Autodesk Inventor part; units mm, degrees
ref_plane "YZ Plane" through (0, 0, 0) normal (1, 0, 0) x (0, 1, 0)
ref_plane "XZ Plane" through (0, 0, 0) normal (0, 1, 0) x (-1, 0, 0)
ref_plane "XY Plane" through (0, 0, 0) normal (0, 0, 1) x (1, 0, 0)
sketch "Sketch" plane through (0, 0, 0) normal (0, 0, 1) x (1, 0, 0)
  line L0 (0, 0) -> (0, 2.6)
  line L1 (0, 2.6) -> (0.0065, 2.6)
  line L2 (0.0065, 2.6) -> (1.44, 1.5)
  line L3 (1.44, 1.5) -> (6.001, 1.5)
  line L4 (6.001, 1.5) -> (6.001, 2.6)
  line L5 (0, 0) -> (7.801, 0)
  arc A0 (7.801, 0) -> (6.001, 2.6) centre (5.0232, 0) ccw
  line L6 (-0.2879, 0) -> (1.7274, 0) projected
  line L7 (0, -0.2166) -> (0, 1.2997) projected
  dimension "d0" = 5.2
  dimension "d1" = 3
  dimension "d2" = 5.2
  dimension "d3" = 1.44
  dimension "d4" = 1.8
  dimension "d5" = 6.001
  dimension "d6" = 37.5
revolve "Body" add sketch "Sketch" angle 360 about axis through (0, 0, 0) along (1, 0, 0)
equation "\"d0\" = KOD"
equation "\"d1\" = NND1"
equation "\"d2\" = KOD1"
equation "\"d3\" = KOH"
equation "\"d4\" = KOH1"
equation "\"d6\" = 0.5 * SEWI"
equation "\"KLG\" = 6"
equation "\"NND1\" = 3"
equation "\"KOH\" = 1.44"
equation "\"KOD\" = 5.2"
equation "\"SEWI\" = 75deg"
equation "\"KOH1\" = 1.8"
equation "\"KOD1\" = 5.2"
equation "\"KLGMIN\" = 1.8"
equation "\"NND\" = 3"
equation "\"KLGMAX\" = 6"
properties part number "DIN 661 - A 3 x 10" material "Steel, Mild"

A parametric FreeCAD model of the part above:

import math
import FreeCAD as App
import Part
import Sketcher
from FreeCAD import Vector
Q = App.Units.Quantity

doc = App.newDocument("Part")
body = doc.addObject("PartDesign::Body", "Body")

sketch1 = body.newObject("Sketcher::SketchObject", "Sketch")
sketch1.AttachmentSupport = (doc.getObject("XY_Plane"), [""])
sketch1.MapMode = "FlatFace"
sketch1.addGeometry([
    Part.LineSegment(Vector(0, 2.6, 0), Vector(0, 0, 0)),
    Part.LineSegment(Vector(0, 0, 0), Vector(7.801, 0, 0)),
    Part.ArcOfCircle(Part.Circle(Vector(5.0232, 0, 0), Vector(0, 0, 1), 2.7778), math.radians(0), math.radians(69.389878)),
    Part.LineSegment(Vector(6.001, 2.6, 0), Vector(6.001, 1.5, 0)),
    Part.LineSegment(Vector(6.001, 1.5, 0), Vector(1.44, 1.5, 0)),
    Part.LineSegment(Vector(1.44, 1.5, 0), Vector(0.0065, 2.6, 0)),
    Part.LineSegment(Vector(0.0065, 2.6, 0), Vector(0, 2.6, 0)),
], False)
sketch1.addConstraint([
    Sketcher.Constraint("Coincident", 0, 2, 1, 1),
    Sketcher.Constraint("Coincident", 1, 2, 2, 1),
    Sketcher.Constraint("Coincident", 2, 2, 3, 1),
    Sketcher.Constraint("Coincident", 3, 2, 4, 1),
    Sketcher.Constraint("Coincident", 4, 2, 5, 1),
    Sketcher.Constraint("Coincident", 5, 2, 6, 1),
    Sketcher.Constraint("Coincident", 6, 2, 0, 1),
    Sketcher.Constraint("Vertical", 0),
    Sketcher.Constraint("Horizontal", 1),
    Sketcher.Constraint("Vertical", 3),
    Sketcher.Constraint("Horizontal", 4),
    Sketcher.Constraint("Horizontal", 6),
    Sketcher.Constraint("Coincident", 0, 2, -1, 1),
    Sketcher.Constraint("PointOnObject", 2, 3, -1),
    Sketcher.Constraint("Horizontal", 2, 2, 5, 2),
    Sketcher.Constraint("DistanceX", 2, 2, 1, 2, 1.8),
    Sketcher.Constraint("DistanceX", -1, 1, 4, 2, 1.44),
    Sketcher.Constraint("DistanceY", 0, 2, 0, 1, 2.6),
    Sketcher.Constraint("DistanceY", 3, 2, 3, 1, 1.1),
    Sketcher.Constraint("DistanceX", -1, 1, 2, 2, 6.001),
    Sketcher.Constraint("Angle", 5, Q("142.499 deg")),
])
revolution = body.newObject("PartDesign::Revolution", "Revolution")
revolution.Profile = sketch1
revolution.ReferenceAxis = (sketch1, ["H_Axis"])
revolution.Angle = 360

doc.recompute()
